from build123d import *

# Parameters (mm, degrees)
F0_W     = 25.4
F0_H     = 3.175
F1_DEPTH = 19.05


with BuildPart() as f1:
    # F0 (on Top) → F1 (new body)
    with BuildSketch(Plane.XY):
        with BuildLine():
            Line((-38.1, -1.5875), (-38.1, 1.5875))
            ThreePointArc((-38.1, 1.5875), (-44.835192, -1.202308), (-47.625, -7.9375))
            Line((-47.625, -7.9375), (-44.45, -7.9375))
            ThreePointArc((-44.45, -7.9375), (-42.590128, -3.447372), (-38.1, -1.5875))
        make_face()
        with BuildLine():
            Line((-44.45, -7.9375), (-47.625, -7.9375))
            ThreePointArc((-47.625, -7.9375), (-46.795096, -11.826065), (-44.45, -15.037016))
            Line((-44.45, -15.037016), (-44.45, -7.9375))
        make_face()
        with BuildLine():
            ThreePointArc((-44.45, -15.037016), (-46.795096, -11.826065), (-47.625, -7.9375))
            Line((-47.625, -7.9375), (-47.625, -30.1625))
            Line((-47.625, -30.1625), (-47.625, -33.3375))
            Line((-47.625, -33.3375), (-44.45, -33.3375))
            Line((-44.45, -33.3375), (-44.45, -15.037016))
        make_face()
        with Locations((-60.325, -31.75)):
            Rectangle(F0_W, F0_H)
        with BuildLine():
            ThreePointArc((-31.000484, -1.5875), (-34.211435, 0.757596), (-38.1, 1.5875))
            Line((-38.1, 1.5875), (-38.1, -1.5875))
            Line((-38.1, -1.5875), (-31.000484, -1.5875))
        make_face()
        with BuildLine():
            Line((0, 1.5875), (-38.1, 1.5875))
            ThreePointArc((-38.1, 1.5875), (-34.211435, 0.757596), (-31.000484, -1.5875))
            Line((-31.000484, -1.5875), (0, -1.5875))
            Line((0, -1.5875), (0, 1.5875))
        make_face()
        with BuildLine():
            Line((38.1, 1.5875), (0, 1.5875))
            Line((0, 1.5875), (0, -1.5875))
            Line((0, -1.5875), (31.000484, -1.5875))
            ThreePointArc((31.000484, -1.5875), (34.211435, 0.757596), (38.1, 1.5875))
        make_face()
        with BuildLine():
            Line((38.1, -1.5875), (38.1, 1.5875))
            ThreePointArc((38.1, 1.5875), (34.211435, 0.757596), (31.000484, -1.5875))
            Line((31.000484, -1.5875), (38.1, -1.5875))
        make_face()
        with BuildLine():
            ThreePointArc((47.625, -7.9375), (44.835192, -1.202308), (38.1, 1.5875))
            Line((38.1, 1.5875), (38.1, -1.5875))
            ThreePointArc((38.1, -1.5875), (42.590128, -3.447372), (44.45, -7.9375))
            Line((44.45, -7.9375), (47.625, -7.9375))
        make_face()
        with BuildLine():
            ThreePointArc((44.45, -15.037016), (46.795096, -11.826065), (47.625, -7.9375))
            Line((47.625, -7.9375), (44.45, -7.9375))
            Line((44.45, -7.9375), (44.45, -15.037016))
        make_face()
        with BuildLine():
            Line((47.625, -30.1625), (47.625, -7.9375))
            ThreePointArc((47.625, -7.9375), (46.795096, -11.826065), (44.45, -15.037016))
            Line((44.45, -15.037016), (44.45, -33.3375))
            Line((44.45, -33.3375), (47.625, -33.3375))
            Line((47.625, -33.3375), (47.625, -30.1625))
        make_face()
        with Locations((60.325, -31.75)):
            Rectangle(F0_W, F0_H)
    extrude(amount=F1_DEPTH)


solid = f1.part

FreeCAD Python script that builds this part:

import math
import FreeCAD as App
import Part
import Sketcher
Q = App.Units.Quantity

doc = App.newDocument("Part")
params = doc.addObject("Spreadsheet::Sheet", "Params")
for row, (alias, value) in enumerate([
    ("sketch1_width", "1 in"),
    ("sketch1_width2", "3 in"),
    ("sketch1_radius", "0.25 in"),
    ("sketch1_radius2", "0.375 in"),
    ("sketch1_height", "0.875 in"),
    ("pad1_length", "0.75 in"),
], start=1):
    params.set(f"A{row}", alias)
    params.set(f"B{row}", "=" + value)
    params.setAlias(f"B{row}", alias)

body = doc.addObject("PartDesign::Body", "Body")

# Sketch on XY plane
sketch1 = body.newObject("Sketcher::SketchObject", "Sketch")
sketch1.AttachmentSupport = (doc.getObject("XY_Plane"), [""])
sketch1.MapMode = "FlatFace"
sketch1.addGeometry([
    Part.ArcOfCircle(Part.Circle(App.Vector(-38.1, -7.9, 0), App.Vector(0, 0, 1), 9.5), math.radians(90), math.radians(180)),  # 0
    Part.LineSegment(App.Vector(-47.6, -7.9, 0), App.Vector(-47.6, -30.2, 0)),  # 1
    Part.LineSegment(App.Vector(-47.6, -30.2, 0), App.Vector(-73, -30.2, 0)),  # 2
    Part.LineSegment(App.Vector(-73, -30.2, 0), App.Vector(-73, -33.3, 0)),  # 3
    Part.LineSegment(App.Vector(-73, -33.3, 0), App.Vector(-44.5, -33.3, 0)),  # 4
    Part.LineSegment(App.Vector(-44.5, -33.3, 0), App.Vector(-44.5, -7.9, 0)),  # 5
    Part.ArcOfCircle(Part.Circle(App.Vector(-38.1, -7.9, 0), App.Vector(0, 0, 1), 6.4), math.radians(90), math.radians(180)),  # 6
    Part.LineSegment(App.Vector(-38.1, -1.6, 0), App.Vector(38.1, -1.6, 0)),  # 7
    Part.ArcOfCircle(Part.Circle(App.Vector(38.1, -7.9, 0), App.Vector(0, 0, 1), 6.4), math.radians(0), math.radians(90)),  # 8
    Part.LineSegment(App.Vector(44.5, -7.9, 0), App.Vector(44.5, -33.3, 0)),  # 9
    Part.LineSegment(App.Vector(44.5, -33.3, 0), App.Vector(73, -33.3, 0)),  # 10
    Part.LineSegment(App.Vector(73, -33.3, 0), App.Vector(73, -30.2, 0)),  # 11
    Part.LineSegment(App.Vector(73, -30.2, 0), App.Vector(47.6, -30.2, 0)),  # 12
    Part.LineSegment(App.Vector(47.6, -30.2, 0), App.Vector(47.6, -7.9, 0)),  # 13
    Part.ArcOfCircle(Part.Circle(App.Vector(38.1, -7.9, 0), App.Vector(0, 0, 1), 9.5), math.radians(0), math.radians(90)),  # 14
    Part.LineSegment(App.Vector(38.1, 1.6, 0), App.Vector(-38.1, 1.6, 0)),  # 15
], False)
sketch1.addConstraint([
    Sketcher.Constraint("Tangent", 0, 2, 1, 1),
    Sketcher.Constraint("Coincident", 1, 2, 2, 1),
    Sketcher.Constraint("Coincident", 2, 2, 3, 1),
    Sketcher.Constraint("Coincident", 3, 2, 4, 1),
    Sketcher.Constraint("Coincident", 4, 2, 5, 1),
    Sketcher.Constraint("Tangent", 5, 2, 6, 2),
    Sketcher.Constraint("Tangent", 6, 1, 7, 1),
    Sketcher.Constraint("Tangent", 7, 2, 8, 2),
    Sketcher.Constraint("Tangent", 8, 1, 9, 1),
    Sketcher.Constraint("Coincident", 9, 2, 10, 1),
    Sketcher.Constraint("Coincident", 10, 2, 11, 1),
    Sketcher.Constraint("Coincident", 11, 2, 12, 1),
    Sketcher.Constraint("Coincident", 12, 2, 13, 1),
    Sketcher.Constraint("Tangent", 13, 2, 14, 1),
    Sketcher.Constraint("Tangent", 14, 2, 15, 1),
    Sketcher.Constraint("Tangent", 15, 2, 0, 1),
    Sketcher.Constraint("Vertical", 1),
    Sketcher.Constraint("Horizontal", 2),
    Sketcher.Constraint("Vertical", 3),
    Sketcher.Constraint("Horizontal", 4),
    Sketcher.Constraint("Vertical", 5),
    Sketcher.Constraint("Horizontal", 7),
    Sketcher.Constraint("Vertical", 9),
    Sketcher.Constraint("Horizontal", 10),
    Sketcher.Constraint("Vertical", 11),
    Sketcher.Constraint("Horizontal", 12),
    Sketcher.Constraint("Vertical", 13),
    Sketcher.Constraint("Horizontal", 15),
    Sketcher.Constraint("Coincident", 6, 3, 0, 3),
    Sketcher.Constraint("Coincident", 14, 3, 8, 3),
    Sketcher.Constraint("Equal", 6, 8),
    Sketcher.Constraint("Symmetric", 6, 1, 14, 2, -1, 1),
    Sketcher.Constraint("Symmetric", 3, 2, 10, 2, -2),
    Sketcher.Constraint("Horizontal", 2, 2, 11, 2),
    Sketcher.Constraint("Equal", 12, 5),
    Sketcher.Constraint("DistanceX", 2, 2, 2, 1, Q("1 in")),
    Sketcher.Constraint("DistanceX", 7, 1, 7, 2, Q("3 in")),
    Sketcher.Constraint("Radius", 6, Q("0.25 in")),
    Sketcher.Constraint("Radius", 0, Q("0.375 in")),
    Sketcher.Constraint("DistanceY", 1, 2, 1, 1, Q("0.875 in")),
])
sketch1.setExpression("Constraints[35]", "Params.sketch1_width")
sketch1.setExpression("Constraints[36]", "Params.sketch1_width2")
sketch1.setExpression("Constraints[37]", "Params.sketch1_radius")
sketch1.setExpression("Constraints[38]", "Params.sketch1_radius2")
sketch1.setExpression("Constraints[39]", "Params.sketch1_height")
pad1 = body.newObject("PartDesign::Pad", "Pad")
pad1.Profile = sketch1
pad1.setExpression("Length", "Params.pad1_length")

doc.recompute()
